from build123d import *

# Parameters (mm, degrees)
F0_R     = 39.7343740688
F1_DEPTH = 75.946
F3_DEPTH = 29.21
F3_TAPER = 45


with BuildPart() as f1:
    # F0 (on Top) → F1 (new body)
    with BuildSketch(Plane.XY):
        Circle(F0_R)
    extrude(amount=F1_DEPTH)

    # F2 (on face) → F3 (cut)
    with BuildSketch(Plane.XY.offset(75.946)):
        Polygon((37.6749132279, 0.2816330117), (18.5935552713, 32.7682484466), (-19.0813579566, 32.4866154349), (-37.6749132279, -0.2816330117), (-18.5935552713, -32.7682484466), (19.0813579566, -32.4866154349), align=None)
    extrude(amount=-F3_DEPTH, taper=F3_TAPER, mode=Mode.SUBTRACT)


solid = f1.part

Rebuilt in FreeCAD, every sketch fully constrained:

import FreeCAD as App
import Part
import Sketcher

doc = App.newDocument("Part")
params = doc.addObject("Spreadsheet::Sheet", "Params")
for row, (alias, value) in enumerate([
    ("pad1_length", "2.99 in"),
    ("pocket1_length", "1.15 in"),
    ("pocket1_taper", "-45 deg"),
], start=1):
    params.set(f"A{row}", alias)
    params.set(f"B{row}", "=" + value)
    params.setAlias(f"B{row}", alias)

body = doc.addObject("PartDesign::Body", "Body")

# Sketch on XY plane
sketch1 = body.newObject("Sketcher::SketchObject", "Sketch")
sketch1.AttachmentSupport = (doc.getObject("XY_Plane"), [""])
sketch1.MapMode = "FlatFace"
sketch1.addGeometry(Part.Circle(App.Vector(0, 0, 0), App.Vector(0, 0, 1), 40), False)
sketch1.addConstraint([
    Sketcher.Constraint("Coincident", 0, 3, -1, 1),
    Sketcher.Constraint("Diameter", 0, 79.468748),
])
pad1 = body.newObject("PartDesign::Pad", "Pad")
pad1.Profile = sketch1
pad1.setExpression("Length", "Params.pad1_length")

# Sketch on XY plane
sketch2 = body.newObject("Sketcher::SketchObject", "Sketch001")
sketch2.AttachmentSupport = (doc.getObject("XY_Plane"), [""])
sketch2.MapMode = "FlatFace"
sketch2.AttachmentOffset = App.Placement(App.Vector(0, 0, 2.99 * 25.4), App.Rotation())
sketch2.addGeometry([
    Part.LineSegment(App.Vector(38, 0, 0), App.Vector(19, 33, 0)),  # 0
    Part.LineSegment(App.Vector(19, 33, 0), App.Vector(-19, 32, 0)),  # 1
    Part.LineSegment(App.Vector(-19, 32, 0), App.Vector(-38, 0, 0)),  # 2
    Part.LineSegment(App.Vector(-38, 0, 0), App.Vector(-19, -33, 0)),  # 3
    Part.LineSegment(App.Vector(-19, -33, 0), App.Vector(19, -32, 0)),  # 4
    Part.LineSegment(App.Vector(19, -32, 0), App.Vector(38, 0, 0)),  # 5
], False)
sketch2.addConstraint([
    Sketcher.Constraint("Coincident", 0, 2, 1, 1),
    Sketcher.Constraint("Coincident", 1, 2, 2, 1),
    Sketcher.Constraint("Coincident", 2, 2, 3, 1),
    Sketcher.Constraint("Coincident", 3, 2, 4, 1),
    Sketcher.Constraint("Coincident", 4, 2, 5, 1),
    Sketcher.Constraint("Coincident", 5, 2, 0, 1),
    Sketcher.Constraint("Symmetric", 0, 2, 3, 2, -1, 1),
    Sketcher.Constraint("Symmetric", 1, 2, 4, 2, -1, 1),
    Sketcher.Constraint("Symmetric", 2, 2, 5, 2, -1, 1),
    Sketcher.Constraint("Equal", 0, 1),
    Sketcher.Constraint("Equal", 1, 2),
    Sketcher.Constraint("DistanceY", -1, 1, 0, 2, 32.768248),
    Sketcher.Constraint("DistanceY", 2, 2, 1, 2, 32.768248),
    Sketcher.Constraint("DistanceX", 2, 2, 0, 2, 56.268468),
    Sketcher.Constraint("DistanceY", 2, 2, 0, 2, 33.049881),
])
pocket1 = body.newObject("PartDesign::Pocket", "Pocket")
pocket1.Profile = sketch2
pocket1.setExpression("Length", "Params.pocket1_length")
pocket1.setExpression("TaperAngle", "Params.pocket1_taper")

doc.recompute()
